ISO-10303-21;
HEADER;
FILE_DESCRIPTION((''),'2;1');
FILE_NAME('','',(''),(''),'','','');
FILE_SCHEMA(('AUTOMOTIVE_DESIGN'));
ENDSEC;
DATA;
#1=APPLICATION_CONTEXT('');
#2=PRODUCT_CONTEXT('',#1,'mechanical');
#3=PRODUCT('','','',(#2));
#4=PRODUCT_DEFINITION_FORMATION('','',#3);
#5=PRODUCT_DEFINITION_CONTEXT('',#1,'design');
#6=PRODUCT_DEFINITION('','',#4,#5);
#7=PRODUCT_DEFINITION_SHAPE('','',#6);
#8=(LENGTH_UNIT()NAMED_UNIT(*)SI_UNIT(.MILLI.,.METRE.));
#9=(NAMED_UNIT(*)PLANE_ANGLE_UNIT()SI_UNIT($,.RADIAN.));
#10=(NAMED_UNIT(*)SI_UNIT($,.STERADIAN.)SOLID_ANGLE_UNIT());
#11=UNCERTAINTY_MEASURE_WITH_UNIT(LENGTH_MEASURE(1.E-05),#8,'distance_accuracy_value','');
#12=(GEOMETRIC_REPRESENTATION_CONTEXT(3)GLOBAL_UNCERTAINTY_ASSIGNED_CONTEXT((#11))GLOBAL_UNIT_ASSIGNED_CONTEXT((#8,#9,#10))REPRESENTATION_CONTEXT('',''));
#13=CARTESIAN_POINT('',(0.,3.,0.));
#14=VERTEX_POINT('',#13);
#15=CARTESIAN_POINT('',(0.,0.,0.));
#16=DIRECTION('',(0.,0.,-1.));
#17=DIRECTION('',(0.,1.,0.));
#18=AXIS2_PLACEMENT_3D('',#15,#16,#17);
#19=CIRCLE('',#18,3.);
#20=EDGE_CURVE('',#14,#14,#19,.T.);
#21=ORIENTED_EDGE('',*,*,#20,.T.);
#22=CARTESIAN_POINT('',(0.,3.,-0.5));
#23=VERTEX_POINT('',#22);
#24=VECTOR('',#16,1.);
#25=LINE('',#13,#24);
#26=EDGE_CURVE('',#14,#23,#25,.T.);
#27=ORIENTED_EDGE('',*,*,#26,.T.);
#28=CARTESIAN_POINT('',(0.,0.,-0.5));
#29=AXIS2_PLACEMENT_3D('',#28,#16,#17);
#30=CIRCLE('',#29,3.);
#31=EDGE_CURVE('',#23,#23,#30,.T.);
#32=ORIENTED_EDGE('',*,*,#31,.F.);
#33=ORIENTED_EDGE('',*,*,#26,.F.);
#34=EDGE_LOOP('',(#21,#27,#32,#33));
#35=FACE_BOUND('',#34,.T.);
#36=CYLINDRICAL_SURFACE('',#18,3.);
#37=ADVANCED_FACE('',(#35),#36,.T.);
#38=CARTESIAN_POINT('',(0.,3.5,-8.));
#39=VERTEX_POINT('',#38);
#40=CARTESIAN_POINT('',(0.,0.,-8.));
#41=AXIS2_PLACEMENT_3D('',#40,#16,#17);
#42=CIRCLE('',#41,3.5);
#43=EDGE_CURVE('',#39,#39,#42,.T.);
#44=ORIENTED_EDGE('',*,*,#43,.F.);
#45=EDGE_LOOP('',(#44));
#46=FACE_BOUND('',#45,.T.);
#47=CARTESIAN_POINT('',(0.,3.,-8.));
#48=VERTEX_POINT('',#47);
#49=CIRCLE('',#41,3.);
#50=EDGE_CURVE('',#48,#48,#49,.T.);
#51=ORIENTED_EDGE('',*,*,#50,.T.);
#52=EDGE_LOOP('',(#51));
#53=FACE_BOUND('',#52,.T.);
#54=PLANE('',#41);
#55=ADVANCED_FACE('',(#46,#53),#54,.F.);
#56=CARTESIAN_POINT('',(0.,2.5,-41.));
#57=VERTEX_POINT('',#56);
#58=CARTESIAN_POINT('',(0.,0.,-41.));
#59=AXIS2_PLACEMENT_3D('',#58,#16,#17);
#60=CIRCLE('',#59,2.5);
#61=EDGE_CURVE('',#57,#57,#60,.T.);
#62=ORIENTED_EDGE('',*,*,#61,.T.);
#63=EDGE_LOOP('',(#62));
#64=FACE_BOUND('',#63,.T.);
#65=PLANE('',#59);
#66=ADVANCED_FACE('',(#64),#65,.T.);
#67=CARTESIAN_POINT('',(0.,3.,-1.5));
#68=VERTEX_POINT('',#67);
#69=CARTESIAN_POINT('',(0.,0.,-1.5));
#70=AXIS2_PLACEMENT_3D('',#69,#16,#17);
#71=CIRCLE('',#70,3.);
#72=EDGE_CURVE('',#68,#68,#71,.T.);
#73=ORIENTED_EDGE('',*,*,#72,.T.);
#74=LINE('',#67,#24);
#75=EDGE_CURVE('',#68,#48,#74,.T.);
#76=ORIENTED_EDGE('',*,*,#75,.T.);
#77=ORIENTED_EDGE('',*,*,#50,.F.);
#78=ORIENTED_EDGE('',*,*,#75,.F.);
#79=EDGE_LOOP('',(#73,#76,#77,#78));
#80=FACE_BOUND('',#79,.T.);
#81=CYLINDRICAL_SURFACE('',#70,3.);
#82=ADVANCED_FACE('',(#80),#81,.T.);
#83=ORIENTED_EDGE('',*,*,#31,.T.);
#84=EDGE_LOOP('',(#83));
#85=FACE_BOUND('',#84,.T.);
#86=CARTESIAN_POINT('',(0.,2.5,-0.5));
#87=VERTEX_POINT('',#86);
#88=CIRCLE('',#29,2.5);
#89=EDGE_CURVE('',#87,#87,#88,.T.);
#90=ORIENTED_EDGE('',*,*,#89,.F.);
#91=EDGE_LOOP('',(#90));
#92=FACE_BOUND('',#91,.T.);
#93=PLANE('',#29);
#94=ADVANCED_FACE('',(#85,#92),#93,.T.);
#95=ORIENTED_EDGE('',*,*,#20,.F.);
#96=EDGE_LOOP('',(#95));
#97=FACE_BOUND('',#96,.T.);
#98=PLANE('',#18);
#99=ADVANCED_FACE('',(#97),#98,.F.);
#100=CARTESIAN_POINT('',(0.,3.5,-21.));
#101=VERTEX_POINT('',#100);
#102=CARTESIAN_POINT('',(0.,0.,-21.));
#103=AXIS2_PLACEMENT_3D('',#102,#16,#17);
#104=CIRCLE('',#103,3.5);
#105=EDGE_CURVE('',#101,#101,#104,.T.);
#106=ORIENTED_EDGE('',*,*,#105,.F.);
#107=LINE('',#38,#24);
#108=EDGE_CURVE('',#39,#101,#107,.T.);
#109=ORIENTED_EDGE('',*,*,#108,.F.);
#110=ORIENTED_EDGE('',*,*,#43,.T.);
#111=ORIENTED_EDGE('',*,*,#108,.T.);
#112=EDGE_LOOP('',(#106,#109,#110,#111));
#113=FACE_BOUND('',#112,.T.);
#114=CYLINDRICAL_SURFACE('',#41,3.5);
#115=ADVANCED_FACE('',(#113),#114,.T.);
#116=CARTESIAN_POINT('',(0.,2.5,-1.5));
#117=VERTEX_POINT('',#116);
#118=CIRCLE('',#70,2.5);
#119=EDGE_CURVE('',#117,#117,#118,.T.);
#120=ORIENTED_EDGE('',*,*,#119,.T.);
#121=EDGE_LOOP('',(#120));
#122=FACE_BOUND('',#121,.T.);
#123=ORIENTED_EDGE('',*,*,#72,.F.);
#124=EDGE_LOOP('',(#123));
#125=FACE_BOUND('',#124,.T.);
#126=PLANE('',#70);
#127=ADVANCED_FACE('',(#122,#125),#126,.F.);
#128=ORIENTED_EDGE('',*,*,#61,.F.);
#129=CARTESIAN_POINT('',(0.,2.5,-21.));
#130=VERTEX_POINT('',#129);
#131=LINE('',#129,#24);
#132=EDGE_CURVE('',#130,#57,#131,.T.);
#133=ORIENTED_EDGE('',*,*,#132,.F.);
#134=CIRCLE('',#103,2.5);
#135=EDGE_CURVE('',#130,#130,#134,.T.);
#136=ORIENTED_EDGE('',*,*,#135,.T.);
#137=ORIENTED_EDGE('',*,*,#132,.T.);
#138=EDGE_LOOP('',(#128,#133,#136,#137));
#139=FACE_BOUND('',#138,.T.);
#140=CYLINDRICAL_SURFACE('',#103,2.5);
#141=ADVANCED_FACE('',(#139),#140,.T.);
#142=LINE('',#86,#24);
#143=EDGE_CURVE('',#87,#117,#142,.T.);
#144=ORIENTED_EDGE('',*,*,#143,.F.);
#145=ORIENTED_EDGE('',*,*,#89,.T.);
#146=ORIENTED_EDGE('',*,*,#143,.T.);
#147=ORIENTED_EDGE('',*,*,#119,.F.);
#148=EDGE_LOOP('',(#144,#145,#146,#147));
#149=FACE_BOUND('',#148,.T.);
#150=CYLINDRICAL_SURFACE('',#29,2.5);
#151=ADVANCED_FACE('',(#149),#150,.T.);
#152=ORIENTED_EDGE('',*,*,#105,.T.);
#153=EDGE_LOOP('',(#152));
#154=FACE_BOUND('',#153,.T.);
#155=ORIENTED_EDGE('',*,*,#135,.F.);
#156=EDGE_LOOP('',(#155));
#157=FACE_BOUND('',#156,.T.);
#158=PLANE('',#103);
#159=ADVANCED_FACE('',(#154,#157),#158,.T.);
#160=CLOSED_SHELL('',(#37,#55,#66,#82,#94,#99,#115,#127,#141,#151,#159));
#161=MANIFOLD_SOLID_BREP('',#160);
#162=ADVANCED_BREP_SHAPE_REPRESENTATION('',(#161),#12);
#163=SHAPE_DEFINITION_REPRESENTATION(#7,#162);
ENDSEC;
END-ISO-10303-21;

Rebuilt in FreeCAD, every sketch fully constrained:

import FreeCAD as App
import Part
import Sketcher
from FreeCAD import Vector


def add_polygon(sketch, points):
    """Adds a closed chain of lines whose ends are joined by coincident constraints."""
    first, n = sketch.GeometryCount, len(points)
    for a, b in zip(points, points[1:] + points[:1]):
        sketch.addGeometry(Part.LineSegment(App.Vector(*a, 0), App.Vector(*b, 0)), False)
    for i in range(n):
        sketch.addConstraint(Sketcher.Constraint("Coincident", first + i, 2, first + (i + 1) % n, 1))

doc = App.newDocument("Part")
params = doc.addObject("Spreadsheet::Sheet", "Params")
for row, (alias, value) in enumerate([
    ("sketch1_width", "3 mm"),
    ("sketch1_width2", "1 mm"),
    ("sketch1_height", "20 mm"),
    ("sketch1_height2", "13 mm"),
    ("sketch1_height3", "6.5 mm"),
    ("revolution_angle", "360 deg"),
], start=1):
    params.set(f"A{row}", alias)
    params.set(f"B{row}", "=" + value)
    params.setAlias(f"B{row}", alias)

body = doc.addObject("PartDesign::Body", "Body")

# Sketch on YZ plane
sketch1 = doc.addObject("Sketcher::SketchObject", "Sketch")
body.addObject(sketch1)
sketch1.AttachmentSupport = (doc.YZ_Plane, [""])
sketch1.MapMode = "FlatFace"
add_polygon(sketch1, [(3, 0), (0, 0), (0, -41), (2.5, -41), (2.5, -21), (3.5, -21), (3.5, -8), (3, -8), (3, -1.5), (2.5, -1.5), (2.5, -0.5), (3, -0.5)])  # lines 0-11
sketch1.addConstraint([
    Sketcher.Constraint("Horizontal", 0),
    Sketcher.Constraint("Vertical", 1),
    Sketcher.Constraint("Horizontal", 2),
    Sketcher.Constraint("Vertical", 3),
    Sketcher.Constraint("Horizontal", 4),
    Sketcher.Constraint("Vertical", 5),
    Sketcher.Constraint("Horizontal", 6),
    Sketcher.Constraint("Vertical", 7),
    Sketcher.Constraint("Horizontal", 8),
    Sketcher.Constraint("Vertical", 9),
    Sketcher.Constraint("Horizontal", 10),
    Sketcher.Constraint("Vertical", 11),
    Sketcher.Constraint("Coincident", 0, 2, -1, 1),
    Sketcher.Constraint("Vertical", 3, 2, 8, 2),
    Sketcher.Constraint("Vertical", 7, 2, 10, 2),
    Sketcher.Constraint("Equal", 6, 8),
    Sketcher.Constraint("Equal", 4, 9),
    Sketcher.Constraint("Equal", 10, 11),
    Sketcher.Constraint("DistanceX", 0, 2, 0, 1, 3.0),
    Sketcher.Constraint("DistanceX", 4, 1, 4, 2, 1.0),
    Sketcher.Constraint("DistanceY", 3, 1, 3, 2, 20.0),
    Sketcher.Constraint("DistanceY", 5, 1, 5, 2, 13.0),
    Sketcher.Constraint("DistanceY", 7, 1, 7, 2, 6.5),
])
sketch1.setExpression("Constraints[30]", "Params.sketch1_width")
sketch1.setExpression("Constraints[31]", "Params.sketch1_width2")
sketch1.setExpression("Constraints[32]", "Params.sketch1_height")
sketch1.setExpression("Constraints[33]", "Params.sketch1_height2")
sketch1.setExpression("Constraints[34]", "Params.sketch1_height3")
revolution = doc.addObject("PartDesign::Revolution", "Revolution")
body.addObject(revolution)
revolution.Profile = sketch1
revolution.ReferenceAxis = (sketch1, ["V_Axis"])
revolution.setExpression("Angle", "Params.revolution_angle")

doc.recompute()
